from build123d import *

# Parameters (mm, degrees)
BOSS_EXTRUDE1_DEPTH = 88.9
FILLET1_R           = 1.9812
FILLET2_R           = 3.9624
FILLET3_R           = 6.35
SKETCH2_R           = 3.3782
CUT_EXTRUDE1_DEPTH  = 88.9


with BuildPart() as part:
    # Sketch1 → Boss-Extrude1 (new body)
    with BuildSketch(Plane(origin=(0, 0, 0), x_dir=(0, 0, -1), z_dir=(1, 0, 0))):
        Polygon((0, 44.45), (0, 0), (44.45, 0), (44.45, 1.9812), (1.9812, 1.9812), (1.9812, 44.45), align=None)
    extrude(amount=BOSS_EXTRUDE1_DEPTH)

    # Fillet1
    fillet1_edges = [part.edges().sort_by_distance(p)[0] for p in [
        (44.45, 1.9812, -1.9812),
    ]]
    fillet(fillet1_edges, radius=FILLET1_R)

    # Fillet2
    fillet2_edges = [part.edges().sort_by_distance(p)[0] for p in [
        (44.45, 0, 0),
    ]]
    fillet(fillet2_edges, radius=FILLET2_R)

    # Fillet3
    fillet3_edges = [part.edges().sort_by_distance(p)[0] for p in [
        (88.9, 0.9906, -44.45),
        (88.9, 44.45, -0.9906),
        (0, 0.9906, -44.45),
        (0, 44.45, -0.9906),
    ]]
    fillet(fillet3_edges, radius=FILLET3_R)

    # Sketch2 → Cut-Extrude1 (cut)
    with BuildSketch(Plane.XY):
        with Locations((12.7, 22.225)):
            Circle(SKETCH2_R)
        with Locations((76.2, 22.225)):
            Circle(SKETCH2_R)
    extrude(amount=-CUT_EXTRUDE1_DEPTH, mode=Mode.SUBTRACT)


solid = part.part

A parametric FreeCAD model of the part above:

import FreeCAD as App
import Part
import Sketcher

V = App.Vector
Q = App.Units.Quantity


def edges_at(feature, points):
    """Names of the edges that pass closest to the given points."""
    edges = feature.Shape.Edges
    near = lambda p: min(range(len(edges)), key=lambda i: edges[i].distToShape(Part.Vertex(*p))[0])
    return sorted({f"Edge{near(p) + 1}" for p in points})

doc = App.newDocument("Part")
body = doc.addObject("PartDesign::Body", "Body")

# Sketch on YZ plane
sketch1 = body.newObject("Sketcher::SketchObject", "Sketch")
sketch1.AttachmentSupport = (doc.getObject("YZ_Plane"), [""])
sketch1.MapMode = "FlatFace"
sketch1.addGeometry([
    Part.LineSegment(V(44.5, 0, 0), V(0, 0, 0)),  # 0
    Part.LineSegment(V(0, 0, 0), V(0, -44.5, 0)),  # 1
    Part.LineSegment(V(0, -44.5, 0), V(2, -44.5, 0)),  # 2
    Part.LineSegment(V(2, -44.5, 0), V(2, -2, 0)),  # 3
    Part.LineSegment(V(2, -2, 0), V(44.5, -2, 0)),  # 4
    Part.LineSegment(V(44.5, -2, 0), V(44.5, 0, 0)),  # 5
], False)
sketch1.addConstraint([
    Sketcher.Constraint("Coincident", 0, 2, 1, 1),
    Sketcher.Constraint("Coincident", 1, 2, 2, 1),
    Sketcher.Constraint("Coincident", 2, 2, 3, 1),
    Sketcher.Constraint("Coincident", 3, 2, 4, 1),
    Sketcher.Constraint("Coincident", 4, 2, 5, 1),
    Sketcher.Constraint("Coincident", 5, 2, 0, 1),
    Sketcher.Constraint("Horizontal", 0),
    Sketcher.Constraint("Vertical", 1),
    Sketcher.Constraint("Horizontal", 2),
    Sketcher.Constraint("Vertical", 3),
    Sketcher.Constraint("Horizontal", 4),
    Sketcher.Constraint("Vertical", 5),
    Sketcher.Constraint("Coincident", 0, 2, -1, 1),
    Sketcher.Constraint("Equal", 0, 1),
    Sketcher.Constraint("Equal", 4, 3),
    Sketcher.Constraint("DistanceX", 0, 2, 0, 1, Q("1.75 in")),
    Sketcher.Constraint("DistanceX", 2, 1, 2, 2, Q("0.078 in")),
])
pad1 = body.newObject("PartDesign::Pad", "Pad")
pad1.Profile = sketch1
pad1.Length = Q("3.5 in")
doc.recompute()

fillet = body.newObject("PartDesign::Fillet", "Fillet")
fillet.Base = (pad1, edges_at(pad1, [(44.45, 1.981, -1.981)]))
fillet.Radius = Q("0.078 in")
doc.recompute()

fillet2 = body.newObject("PartDesign::Fillet", "Fillet001")
fillet2.Base = (fillet, edges_at(fillet, [(44.45, 0, 0)]))
fillet2.Radius = Q("0.156 in")
doc.recompute()

fillet3 = body.newObject("PartDesign::Fillet", "Fillet002")
fillet3.Base = (fillet2, edges_at(fillet2, [
    (88.9, 0.991, -44.45),
    (88.9, 44.45, -0.991),
    (0, 0.991, -44.45),
    (0, 44.45, -0.991),
]))
fillet3.Radius = Q("0.25 in")

# Sketch on XY plane
sketch2 = body.newObject("Sketcher::SketchObject", "Sketch001")
sketch2.AttachmentSupport = (doc.getObject("XY_Plane"), [""])
sketch2.MapMode = "FlatFace"
sketch2.addGeometry([
    Part.Circle(V(12.7, 22.2, 0), V(0, 0, 1), 3.4),
    Part.Circle(V(76.2, 22.2, 0), V(0, 0, 1), 3.4),
], False)
sketch2.addConstraint([
    Sketcher.Constraint("Equal", 0, 1),
    Sketcher.Constraint("Horizontal", 0, 3, 1, 3),
    Sketcher.Constraint("Diameter", 0, Q("0.266 in")),
    Sketcher.Constraint("DistanceX", -1, 1, 1, 3, Q("3 in")),
    Sketcher.Constraint("DistanceX", -1, 1, 0, 3, Q("0.5 in")),
    Sketcher.Constraint("DistanceY", -1, 1, 0, 3, Q("0.875 in")),
])
pocket1 = body.newObject("PartDesign::Pocket", "Pocket")
pocket1.Profile = sketch2
pocket1.Length = Q("3.5 in")

doc.recompute()
